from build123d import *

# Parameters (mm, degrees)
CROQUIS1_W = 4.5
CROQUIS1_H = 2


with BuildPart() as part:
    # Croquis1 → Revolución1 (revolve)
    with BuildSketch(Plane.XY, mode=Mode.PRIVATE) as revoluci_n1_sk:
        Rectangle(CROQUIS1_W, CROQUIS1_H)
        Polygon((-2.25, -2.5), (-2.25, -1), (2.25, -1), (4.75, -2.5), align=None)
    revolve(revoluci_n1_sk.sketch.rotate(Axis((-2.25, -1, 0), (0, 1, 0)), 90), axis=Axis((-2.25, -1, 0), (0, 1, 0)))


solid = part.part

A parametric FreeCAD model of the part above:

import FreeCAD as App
import Part
import Sketcher

doc = App.newDocument("Part")
body = doc.addObject("PartDesign::Body", "Body")

# Sketch on XY plane
sketch1 = body.newObject("Sketcher::SketchObject", "Sketch")
sketch1.AttachmentSupport = (doc.getObject("XY_Plane"), [""])
sketch1.MapMode = "FlatFace"
sketch1.addGeometry([
    Part.LineSegment(App.Vector(-2.2, 1, 0), App.Vector(-2.2, -2.5, 0)),  # 0
    Part.LineSegment(App.Vector(-2.2, -2.5, 0), App.Vector(4.8, -2.5, 0)),  # 1
    Part.LineSegment(App.Vector(4.8, -2.5, 0), App.Vector(2.2, -1, 0)),  # 2
    Part.LineSegment(App.Vector(2.2, -1, 0), App.Vector(2.2, 1, 0)),  # 3
    Part.LineSegment(App.Vector(2.2, 1, 0), App.Vector(-2.2, 1, 0)),  # 4
], False)
sketch1.addGeometry(Part.LineSegment(App.Vector(-2.2, -2.5, 0), App.Vector(-2.2, 1, 0)), True)  # axis
sketch1.addConstraint([
    Sketcher.Constraint("Coincident", 0, 2, 1, 1),
    Sketcher.Constraint("Coincident", 1, 2, 2, 1),
    Sketcher.Constraint("Coincident", 2, 2, 3, 1),
    Sketcher.Constraint("Coincident", 3, 2, 4, 1),
    Sketcher.Constraint("Coincident", 4, 2, 0, 1),
    Sketcher.Constraint("Vertical", 0),
    Sketcher.Constraint("Horizontal", 1),
    Sketcher.Constraint("Vertical", 3),
    Sketcher.Constraint("Horizontal", 4),
    Sketcher.Constraint("Vertical", 5),
    Sketcher.Constraint("Coincident", 5, 1, 0, 2),
    Sketcher.Constraint("Symmetric", 2, 2, 4, 2, -1, 1),
    Sketcher.Constraint("Horizontal", 3, 2, 5, 2),
    Sketcher.Constraint("DistanceX", 1, 1, 1, 2, 7.0),
    Sketcher.Constraint("DistanceY", 3, 1, 3, 2, 2.0),
    Sketcher.Constraint("DistanceX", 4, 2, 4, 1, 4.5),
    Sketcher.Constraint("DistanceY", 0, 2, 0, 1, 3.5),
])
revolution = body.newObject("PartDesign::Revolution", "Revolution")
revolution.Profile = sketch1
revolution.ReferenceAxis = (sketch1, ["Axis0"])
revolution.Angle = 360

doc.recompute()
